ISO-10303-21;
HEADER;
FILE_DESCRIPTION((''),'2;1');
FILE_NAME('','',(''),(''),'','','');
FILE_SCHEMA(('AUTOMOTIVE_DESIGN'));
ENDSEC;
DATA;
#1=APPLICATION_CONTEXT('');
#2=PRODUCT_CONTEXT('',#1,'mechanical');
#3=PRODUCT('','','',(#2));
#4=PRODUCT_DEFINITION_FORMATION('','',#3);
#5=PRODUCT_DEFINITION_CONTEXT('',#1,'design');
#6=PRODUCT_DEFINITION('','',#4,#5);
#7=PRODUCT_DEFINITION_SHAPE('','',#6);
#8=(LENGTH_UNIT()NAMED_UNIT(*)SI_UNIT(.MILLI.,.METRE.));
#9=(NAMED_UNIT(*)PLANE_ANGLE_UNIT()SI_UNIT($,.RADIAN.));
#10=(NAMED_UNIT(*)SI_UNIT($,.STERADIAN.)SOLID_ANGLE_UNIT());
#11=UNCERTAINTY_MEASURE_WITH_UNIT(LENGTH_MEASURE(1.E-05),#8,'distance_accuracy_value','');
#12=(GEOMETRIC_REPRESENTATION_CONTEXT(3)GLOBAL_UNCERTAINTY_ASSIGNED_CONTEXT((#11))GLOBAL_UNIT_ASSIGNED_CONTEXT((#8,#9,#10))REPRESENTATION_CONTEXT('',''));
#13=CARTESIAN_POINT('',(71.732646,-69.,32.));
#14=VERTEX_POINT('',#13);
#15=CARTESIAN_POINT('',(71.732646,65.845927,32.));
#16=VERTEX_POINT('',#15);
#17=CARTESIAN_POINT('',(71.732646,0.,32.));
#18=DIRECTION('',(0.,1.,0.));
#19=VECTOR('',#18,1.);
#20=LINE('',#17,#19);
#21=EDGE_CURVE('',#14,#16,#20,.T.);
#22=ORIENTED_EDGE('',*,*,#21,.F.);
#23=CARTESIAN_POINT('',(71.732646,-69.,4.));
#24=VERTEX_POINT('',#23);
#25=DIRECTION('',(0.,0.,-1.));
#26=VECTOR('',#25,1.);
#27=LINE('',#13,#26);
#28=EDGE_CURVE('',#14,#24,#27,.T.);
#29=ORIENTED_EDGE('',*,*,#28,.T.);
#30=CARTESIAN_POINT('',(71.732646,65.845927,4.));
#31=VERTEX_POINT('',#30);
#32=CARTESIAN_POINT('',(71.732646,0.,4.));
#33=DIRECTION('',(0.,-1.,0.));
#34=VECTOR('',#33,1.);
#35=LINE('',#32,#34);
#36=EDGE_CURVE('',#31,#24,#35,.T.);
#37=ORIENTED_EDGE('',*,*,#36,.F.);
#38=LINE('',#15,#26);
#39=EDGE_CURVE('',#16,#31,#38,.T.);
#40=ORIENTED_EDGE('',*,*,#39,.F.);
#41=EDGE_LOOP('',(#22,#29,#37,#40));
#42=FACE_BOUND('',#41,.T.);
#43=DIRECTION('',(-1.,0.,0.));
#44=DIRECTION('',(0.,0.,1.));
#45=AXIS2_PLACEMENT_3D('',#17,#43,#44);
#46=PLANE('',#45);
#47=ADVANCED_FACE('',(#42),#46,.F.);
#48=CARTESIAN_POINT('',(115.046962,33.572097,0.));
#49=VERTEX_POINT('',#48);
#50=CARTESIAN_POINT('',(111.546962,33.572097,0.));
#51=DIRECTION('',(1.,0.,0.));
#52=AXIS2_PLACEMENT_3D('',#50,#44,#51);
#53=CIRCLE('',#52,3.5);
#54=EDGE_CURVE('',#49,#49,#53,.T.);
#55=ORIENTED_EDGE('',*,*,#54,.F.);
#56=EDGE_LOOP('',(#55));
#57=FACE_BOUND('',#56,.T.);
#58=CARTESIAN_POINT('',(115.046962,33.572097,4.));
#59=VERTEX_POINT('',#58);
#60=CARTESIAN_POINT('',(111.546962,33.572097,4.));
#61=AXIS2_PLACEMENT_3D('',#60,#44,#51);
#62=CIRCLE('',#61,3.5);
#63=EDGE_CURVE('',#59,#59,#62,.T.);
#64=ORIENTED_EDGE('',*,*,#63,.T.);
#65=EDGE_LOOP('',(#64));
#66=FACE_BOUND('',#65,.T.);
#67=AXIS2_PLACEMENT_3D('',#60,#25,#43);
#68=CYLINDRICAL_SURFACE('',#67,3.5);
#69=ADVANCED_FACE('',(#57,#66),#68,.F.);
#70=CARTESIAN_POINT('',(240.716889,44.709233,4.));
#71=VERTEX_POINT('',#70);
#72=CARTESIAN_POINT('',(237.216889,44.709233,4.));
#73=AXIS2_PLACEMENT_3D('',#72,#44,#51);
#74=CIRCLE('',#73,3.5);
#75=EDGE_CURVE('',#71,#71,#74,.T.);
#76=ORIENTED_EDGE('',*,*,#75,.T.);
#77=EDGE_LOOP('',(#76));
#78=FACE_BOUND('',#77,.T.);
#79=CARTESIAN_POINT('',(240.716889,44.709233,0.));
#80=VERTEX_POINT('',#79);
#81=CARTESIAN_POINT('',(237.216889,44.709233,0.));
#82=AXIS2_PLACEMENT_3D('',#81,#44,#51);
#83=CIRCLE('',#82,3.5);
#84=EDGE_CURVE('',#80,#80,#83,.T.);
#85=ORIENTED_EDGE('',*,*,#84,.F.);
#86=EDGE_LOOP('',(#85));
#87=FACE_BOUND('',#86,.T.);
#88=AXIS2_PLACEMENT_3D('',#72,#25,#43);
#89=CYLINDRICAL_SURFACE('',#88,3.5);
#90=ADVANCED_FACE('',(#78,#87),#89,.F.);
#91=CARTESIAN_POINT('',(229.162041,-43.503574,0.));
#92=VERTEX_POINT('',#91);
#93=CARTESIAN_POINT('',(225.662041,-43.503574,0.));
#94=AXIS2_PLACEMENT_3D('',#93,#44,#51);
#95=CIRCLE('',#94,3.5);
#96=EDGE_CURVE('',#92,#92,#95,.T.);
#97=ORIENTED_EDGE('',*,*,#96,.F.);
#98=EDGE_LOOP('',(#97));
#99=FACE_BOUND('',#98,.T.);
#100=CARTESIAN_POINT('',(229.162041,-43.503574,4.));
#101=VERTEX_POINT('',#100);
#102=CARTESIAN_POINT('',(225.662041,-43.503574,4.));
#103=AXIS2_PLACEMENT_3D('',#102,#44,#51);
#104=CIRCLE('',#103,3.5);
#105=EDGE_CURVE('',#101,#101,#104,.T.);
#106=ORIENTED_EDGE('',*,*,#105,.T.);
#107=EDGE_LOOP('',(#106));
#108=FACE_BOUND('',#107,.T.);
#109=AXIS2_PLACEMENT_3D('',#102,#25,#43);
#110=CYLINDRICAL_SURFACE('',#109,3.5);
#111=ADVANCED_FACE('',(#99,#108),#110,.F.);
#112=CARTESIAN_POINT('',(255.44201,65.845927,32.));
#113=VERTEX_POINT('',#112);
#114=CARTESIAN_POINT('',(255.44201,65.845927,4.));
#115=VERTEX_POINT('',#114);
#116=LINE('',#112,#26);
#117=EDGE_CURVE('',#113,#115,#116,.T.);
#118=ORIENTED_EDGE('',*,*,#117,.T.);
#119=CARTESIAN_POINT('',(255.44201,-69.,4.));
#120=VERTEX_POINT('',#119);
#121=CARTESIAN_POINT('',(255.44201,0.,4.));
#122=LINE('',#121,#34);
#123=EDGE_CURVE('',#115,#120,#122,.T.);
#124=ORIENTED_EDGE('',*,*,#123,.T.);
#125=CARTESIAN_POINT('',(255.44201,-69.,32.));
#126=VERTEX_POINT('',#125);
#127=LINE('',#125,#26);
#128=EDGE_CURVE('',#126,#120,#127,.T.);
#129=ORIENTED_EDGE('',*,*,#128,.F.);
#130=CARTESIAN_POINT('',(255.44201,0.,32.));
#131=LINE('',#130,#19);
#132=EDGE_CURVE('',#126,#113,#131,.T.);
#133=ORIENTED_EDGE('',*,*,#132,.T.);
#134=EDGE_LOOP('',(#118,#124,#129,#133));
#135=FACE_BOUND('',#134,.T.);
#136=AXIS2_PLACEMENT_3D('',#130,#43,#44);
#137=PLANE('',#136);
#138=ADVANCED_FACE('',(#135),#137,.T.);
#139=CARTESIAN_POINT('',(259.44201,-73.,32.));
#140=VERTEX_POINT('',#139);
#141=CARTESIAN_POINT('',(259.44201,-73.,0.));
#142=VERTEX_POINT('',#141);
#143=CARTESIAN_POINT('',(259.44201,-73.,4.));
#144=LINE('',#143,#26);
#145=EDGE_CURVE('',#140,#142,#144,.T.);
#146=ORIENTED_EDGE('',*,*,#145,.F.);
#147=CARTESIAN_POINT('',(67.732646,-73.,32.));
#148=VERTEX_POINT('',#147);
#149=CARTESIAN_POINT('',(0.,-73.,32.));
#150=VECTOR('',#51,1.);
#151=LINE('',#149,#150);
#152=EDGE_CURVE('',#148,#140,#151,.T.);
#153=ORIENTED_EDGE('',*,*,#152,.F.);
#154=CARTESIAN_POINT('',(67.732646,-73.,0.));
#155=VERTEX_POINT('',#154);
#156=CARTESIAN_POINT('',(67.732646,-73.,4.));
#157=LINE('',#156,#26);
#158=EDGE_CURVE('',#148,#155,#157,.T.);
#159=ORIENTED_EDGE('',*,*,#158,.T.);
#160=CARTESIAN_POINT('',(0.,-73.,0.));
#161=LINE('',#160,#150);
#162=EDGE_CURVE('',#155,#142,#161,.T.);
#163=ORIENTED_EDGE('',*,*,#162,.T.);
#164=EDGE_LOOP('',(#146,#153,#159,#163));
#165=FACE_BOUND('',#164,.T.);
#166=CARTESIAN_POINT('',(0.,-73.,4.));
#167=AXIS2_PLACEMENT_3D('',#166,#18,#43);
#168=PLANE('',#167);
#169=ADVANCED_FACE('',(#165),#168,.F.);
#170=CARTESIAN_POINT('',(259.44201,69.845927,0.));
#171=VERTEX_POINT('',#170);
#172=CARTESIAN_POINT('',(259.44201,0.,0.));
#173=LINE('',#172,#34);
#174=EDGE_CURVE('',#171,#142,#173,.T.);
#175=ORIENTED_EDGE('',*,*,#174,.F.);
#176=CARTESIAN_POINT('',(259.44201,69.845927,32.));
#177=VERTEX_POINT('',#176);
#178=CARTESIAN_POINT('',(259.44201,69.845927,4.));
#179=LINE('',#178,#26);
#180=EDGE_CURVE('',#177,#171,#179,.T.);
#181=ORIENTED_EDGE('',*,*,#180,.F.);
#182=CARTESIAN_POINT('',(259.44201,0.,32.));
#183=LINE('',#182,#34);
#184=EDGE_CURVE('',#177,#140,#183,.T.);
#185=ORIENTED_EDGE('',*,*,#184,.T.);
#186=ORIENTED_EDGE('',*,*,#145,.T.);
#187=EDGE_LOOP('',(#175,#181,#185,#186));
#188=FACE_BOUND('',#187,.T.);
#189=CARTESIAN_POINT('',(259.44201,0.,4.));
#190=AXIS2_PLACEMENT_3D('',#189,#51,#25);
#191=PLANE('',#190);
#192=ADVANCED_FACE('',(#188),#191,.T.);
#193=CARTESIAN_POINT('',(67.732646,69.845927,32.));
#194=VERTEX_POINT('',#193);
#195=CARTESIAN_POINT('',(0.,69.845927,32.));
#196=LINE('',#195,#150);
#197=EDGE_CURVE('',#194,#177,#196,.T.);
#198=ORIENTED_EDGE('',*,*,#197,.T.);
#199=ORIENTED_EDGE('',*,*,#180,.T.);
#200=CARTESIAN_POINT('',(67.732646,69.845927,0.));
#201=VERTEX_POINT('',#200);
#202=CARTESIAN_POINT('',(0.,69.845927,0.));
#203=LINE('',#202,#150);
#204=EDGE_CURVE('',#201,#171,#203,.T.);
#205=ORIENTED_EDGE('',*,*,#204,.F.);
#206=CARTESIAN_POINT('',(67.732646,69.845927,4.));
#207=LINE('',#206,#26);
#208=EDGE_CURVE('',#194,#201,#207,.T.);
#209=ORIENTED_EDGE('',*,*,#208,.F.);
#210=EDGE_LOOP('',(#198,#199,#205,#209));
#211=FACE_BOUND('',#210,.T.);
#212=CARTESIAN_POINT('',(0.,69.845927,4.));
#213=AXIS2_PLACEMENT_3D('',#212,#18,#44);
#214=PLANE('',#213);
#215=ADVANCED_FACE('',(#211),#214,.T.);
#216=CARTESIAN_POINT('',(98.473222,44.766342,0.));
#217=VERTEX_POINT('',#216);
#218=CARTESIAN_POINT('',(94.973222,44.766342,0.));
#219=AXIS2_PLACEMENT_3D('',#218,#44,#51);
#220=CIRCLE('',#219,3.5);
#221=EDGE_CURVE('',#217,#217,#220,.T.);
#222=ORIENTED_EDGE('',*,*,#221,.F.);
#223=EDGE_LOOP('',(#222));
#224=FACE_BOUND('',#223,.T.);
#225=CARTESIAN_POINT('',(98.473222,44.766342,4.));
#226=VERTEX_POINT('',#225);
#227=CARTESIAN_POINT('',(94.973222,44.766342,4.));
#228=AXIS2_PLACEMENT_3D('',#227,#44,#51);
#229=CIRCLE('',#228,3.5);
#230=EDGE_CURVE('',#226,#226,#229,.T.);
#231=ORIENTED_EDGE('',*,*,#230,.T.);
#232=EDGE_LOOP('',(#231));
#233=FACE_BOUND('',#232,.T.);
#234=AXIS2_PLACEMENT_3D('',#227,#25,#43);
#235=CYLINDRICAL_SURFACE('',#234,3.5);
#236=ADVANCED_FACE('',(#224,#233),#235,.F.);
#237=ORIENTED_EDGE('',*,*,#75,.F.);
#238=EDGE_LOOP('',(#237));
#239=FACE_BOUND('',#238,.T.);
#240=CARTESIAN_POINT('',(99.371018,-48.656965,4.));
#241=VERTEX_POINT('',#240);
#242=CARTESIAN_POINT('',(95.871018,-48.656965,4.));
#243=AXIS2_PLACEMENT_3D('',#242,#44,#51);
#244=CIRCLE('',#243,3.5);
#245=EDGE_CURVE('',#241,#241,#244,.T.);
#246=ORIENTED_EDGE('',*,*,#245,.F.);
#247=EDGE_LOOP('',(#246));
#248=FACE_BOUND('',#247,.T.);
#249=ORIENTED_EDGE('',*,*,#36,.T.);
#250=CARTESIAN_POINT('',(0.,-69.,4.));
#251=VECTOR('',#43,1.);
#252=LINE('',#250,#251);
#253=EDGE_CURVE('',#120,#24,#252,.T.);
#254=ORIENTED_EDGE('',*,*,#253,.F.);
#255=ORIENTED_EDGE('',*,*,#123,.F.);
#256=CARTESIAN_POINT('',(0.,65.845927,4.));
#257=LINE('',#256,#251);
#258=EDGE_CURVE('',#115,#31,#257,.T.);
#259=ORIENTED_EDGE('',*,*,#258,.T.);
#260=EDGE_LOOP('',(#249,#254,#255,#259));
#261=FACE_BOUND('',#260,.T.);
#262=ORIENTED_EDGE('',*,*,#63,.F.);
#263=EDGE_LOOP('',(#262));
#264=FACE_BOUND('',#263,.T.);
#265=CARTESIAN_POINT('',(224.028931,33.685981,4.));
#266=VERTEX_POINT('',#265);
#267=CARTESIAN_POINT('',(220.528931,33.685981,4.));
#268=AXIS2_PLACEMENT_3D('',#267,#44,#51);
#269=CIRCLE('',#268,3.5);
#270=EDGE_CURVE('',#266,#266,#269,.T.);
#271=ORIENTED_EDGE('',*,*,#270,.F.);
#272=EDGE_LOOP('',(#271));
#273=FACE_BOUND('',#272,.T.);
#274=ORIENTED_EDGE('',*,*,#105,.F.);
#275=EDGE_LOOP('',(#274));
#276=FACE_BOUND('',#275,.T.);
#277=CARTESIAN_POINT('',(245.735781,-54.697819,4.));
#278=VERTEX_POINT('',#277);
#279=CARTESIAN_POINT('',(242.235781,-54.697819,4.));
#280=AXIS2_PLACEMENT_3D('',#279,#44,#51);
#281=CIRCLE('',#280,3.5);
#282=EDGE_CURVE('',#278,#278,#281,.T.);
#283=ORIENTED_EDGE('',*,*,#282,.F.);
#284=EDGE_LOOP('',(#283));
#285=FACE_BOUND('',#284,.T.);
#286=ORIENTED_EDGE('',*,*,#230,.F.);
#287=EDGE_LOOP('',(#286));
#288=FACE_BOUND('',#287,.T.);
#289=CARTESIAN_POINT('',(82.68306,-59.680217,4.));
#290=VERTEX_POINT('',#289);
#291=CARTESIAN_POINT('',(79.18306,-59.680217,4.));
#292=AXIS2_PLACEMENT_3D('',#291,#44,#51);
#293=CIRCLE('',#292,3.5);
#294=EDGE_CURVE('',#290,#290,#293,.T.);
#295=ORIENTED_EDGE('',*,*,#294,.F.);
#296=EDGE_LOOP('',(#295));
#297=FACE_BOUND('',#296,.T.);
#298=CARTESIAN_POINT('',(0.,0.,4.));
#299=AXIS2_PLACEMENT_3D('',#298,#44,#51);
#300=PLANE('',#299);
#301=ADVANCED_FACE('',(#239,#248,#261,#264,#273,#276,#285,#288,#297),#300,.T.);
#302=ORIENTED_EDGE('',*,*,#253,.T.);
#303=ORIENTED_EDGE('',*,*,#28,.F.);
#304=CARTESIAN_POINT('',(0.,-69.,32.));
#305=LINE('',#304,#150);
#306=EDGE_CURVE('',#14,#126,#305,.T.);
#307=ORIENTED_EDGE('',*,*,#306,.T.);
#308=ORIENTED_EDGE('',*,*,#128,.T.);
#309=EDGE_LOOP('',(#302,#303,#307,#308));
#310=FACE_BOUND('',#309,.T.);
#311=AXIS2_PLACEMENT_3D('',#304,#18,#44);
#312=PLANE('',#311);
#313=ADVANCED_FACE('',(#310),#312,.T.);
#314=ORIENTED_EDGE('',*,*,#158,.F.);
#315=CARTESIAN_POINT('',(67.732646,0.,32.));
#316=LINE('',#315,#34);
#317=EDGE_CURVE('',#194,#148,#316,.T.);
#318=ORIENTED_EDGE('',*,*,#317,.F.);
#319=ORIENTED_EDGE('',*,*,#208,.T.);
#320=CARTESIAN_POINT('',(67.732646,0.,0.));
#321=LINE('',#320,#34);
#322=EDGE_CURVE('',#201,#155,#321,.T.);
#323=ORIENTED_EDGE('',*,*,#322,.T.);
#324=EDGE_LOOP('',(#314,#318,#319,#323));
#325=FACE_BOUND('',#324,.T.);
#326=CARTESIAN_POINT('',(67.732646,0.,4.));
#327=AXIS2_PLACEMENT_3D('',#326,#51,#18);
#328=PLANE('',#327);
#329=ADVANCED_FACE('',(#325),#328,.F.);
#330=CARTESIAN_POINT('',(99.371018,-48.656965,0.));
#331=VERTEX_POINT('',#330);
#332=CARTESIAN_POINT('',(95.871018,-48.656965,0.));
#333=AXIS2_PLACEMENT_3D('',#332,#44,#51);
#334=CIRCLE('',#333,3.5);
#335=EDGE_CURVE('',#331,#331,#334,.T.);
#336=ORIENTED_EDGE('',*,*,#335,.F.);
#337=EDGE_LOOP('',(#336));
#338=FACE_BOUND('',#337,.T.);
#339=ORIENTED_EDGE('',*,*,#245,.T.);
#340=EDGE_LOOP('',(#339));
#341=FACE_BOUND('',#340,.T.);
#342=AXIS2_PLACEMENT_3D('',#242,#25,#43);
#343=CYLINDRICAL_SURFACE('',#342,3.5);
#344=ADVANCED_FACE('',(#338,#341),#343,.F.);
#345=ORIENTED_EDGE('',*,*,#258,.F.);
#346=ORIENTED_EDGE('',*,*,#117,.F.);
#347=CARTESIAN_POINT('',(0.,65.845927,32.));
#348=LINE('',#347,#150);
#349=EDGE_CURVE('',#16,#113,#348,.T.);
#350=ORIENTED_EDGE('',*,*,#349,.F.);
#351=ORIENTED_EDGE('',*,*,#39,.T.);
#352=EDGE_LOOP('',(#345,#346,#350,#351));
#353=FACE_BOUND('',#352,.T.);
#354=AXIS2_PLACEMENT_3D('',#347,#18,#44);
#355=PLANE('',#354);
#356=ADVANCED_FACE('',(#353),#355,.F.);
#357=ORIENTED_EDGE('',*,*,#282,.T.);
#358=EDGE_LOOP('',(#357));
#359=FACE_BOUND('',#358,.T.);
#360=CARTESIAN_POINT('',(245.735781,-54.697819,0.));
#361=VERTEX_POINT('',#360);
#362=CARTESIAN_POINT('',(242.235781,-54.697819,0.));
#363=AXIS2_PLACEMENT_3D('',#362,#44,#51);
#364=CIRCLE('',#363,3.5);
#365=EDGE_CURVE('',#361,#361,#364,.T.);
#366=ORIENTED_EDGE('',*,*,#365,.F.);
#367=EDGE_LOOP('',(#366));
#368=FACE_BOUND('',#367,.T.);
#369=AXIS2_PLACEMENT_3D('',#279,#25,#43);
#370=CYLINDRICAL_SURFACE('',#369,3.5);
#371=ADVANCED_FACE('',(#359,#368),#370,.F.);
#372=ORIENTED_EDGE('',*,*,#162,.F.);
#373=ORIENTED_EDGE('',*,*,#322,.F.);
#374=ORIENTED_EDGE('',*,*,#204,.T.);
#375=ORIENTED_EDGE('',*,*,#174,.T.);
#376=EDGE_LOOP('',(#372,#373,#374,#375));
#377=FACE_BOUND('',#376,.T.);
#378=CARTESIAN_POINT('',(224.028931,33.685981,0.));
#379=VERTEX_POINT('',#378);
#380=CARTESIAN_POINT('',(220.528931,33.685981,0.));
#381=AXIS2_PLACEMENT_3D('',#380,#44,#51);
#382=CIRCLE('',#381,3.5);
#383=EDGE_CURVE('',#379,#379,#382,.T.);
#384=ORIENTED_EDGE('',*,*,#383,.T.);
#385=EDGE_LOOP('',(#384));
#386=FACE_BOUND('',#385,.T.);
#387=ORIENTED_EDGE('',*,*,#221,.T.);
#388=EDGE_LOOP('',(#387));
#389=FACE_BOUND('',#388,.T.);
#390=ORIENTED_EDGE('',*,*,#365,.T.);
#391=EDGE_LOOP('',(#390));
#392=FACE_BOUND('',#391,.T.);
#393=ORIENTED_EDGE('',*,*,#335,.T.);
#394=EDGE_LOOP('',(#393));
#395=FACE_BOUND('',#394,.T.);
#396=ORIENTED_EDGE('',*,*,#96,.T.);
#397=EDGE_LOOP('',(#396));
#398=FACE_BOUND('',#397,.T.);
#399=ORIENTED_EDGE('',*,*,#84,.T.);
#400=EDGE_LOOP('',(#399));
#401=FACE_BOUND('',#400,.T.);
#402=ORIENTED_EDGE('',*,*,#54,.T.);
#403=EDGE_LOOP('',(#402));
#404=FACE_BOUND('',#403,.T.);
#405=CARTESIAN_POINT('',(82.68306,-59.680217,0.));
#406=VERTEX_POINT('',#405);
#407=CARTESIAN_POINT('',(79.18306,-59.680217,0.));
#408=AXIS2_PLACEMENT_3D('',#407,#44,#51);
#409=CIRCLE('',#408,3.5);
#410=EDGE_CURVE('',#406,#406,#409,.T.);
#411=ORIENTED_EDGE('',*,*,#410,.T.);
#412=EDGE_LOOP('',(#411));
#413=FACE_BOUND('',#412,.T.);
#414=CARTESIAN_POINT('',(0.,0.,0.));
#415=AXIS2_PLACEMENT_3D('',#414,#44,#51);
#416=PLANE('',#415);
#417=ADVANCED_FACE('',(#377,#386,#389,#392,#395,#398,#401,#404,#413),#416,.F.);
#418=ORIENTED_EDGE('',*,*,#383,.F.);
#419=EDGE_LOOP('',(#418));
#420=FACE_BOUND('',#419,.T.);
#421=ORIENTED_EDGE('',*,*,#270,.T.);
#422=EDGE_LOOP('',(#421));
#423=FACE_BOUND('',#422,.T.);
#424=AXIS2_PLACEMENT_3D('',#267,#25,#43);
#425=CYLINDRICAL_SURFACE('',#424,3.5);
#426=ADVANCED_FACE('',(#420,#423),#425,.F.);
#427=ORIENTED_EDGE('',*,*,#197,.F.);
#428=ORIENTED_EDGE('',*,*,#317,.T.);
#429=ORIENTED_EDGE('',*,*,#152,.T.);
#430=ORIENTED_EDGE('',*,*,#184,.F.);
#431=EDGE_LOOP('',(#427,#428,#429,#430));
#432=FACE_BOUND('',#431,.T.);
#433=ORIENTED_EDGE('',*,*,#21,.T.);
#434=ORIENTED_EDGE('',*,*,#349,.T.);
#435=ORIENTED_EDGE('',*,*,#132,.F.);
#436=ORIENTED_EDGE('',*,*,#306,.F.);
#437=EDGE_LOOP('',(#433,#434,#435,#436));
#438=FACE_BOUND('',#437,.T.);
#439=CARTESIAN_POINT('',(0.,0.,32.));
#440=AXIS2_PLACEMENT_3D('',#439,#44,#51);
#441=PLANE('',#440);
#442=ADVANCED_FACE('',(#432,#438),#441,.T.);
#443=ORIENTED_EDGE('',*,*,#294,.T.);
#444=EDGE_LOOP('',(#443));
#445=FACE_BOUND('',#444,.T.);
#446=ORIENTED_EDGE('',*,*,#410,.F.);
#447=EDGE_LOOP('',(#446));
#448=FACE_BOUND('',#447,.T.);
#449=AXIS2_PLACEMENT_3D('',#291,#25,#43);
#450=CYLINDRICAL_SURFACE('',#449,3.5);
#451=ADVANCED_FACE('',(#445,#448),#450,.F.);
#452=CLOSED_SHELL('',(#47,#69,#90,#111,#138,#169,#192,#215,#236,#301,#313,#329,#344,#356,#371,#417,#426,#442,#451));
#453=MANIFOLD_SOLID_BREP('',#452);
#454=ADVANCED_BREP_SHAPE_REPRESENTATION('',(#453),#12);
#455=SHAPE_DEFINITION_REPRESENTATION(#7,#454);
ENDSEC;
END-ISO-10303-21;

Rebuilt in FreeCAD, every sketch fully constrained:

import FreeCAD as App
import Part
import Sketcher

V = App.Vector
Q = App.Units.Quantity


def add_polygon(sketch, points):
    """Adds a closed chain of lines whose ends are joined by coincident constraints."""
    first, n = sketch.GeometryCount, len(points)
    for a, b in zip(points, points[1:] + points[:1]):
        sketch.addGeometry(Part.LineSegment(App.Vector(*a, 0), App.Vector(*b, 0)), False)
    for i in range(n):
        sketch.addConstraint(Sketcher.Constraint("Coincident", first + i, 2, first + (i + 1) % n, 1))

doc = App.newDocument("Part")
body = doc.addObject("PartDesign::Body", "Body")

# Sketch on XY plane
sketch1 = body.newObject("Sketcher::SketchObject", "Sketch")
sketch1.AttachmentSupport = (doc.getObject("XY_Plane"), [""])
sketch1.MapMode = "FlatFace"
add_polygon(sketch1, [(67.732646, 69.845927), (67.732646, -73), (259.44201, -73), (259.44201, 69.845927)])  # lines 0-3
sketch1.addGeometry(Part.Circle(V(79.18306, -59.680217, 0), V(0, 0, 1), 3.5), False)  # 4
sketch1.addGeometry(Part.Circle(V(95.871018, -48.656965, 0), V(0, 0, 1), 3.5), False)  # 5
sketch1.addGeometry(Part.Circle(V(242.235781, -54.697819, 0), V(0, 0, 1), 3.5), False)  # 6
sketch1.addGeometry(Part.Circle(V(225.662041, -43.503574, 0), V(0, 0, 1), 3.5), False)  # 7
sketch1.addGeometry(Part.Circle(V(111.546962, 33.572097, 0), V(0, 0, 1), 3.5), False)  # 8
sketch1.addGeometry(Part.Circle(V(94.973222, 44.766342, 0), V(0, 0, 1), 3.5), False)  # 9
sketch1.addGeometry(Part.Circle(V(220.528931, 33.685981, 0), V(0, 0, 1), 3.5), False)  # 10
sketch1.addGeometry(Part.Circle(V(237.216889, 44.709233, 0), V(0, 0, 1), 3.5), False)  # 11
sketch1.addConstraint([
    Sketcher.Constraint("Vertical", 0),
    Sketcher.Constraint("Horizontal", 1),
    Sketcher.Constraint("Vertical", 2),
    Sketcher.Constraint("Horizontal", 3),
    Sketcher.Constraint("Equal", 4, 5),
    Sketcher.Constraint("Equal", 5, 6),
    Sketcher.Constraint("Equal", 6, 7),
    Sketcher.Constraint("Equal", 7, 8),
    Sketcher.Constraint("Equal", 8, 9),
    Sketcher.Constraint("Equal", 9, 10),
    Sketcher.Constraint("Equal", 10, 11),
    Sketcher.Constraint("Diameter", 4, Q("7 mm")),
    Sketcher.Constraint("DistanceY", 0, 2, -1, 1, Q("73 mm")),
    Sketcher.Constraint("DistanceY", 4, 3, 6, 3, Q("4.982398 mm")),
    Sketcher.Constraint("DistanceX", 4, 3, 8, 3, Q("32.363902 mm")),
    Sketcher.Constraint("DistanceY", 6, 3, 10, 3, Q("88.3838 mm")),
    Sketcher.Constraint("DistanceY", 7, 3, 2, 2, Q("113.349501 mm")),
    Sketcher.Constraint("DistanceX", 1, 1, 1, 2, Q("191.709364 mm")),
    Sketcher.Constraint("DistanceY", 0, 2, 0, 1, Q("142.845927 mm")),
    Sketcher.Constraint("DistanceX", -1, 1, 4, 3, Q("79.18306 mm")),
    Sketcher.Constraint("DistanceX", -1, 1, 6, 3, Q("242.235781 mm")),
    Sketcher.Constraint("DistanceY", 6, 3, -1, 1, Q("54.697819 mm")),
    Sketcher.Constraint("DistanceX", -1, 1, 7, 3, Q("225.662041 mm")),
    Sketcher.Constraint("DistanceX", -1, 1, 9, 3, Q("94.973222 mm")),
    Sketcher.Constraint("DistanceY", -1, 1, 9, 3, Q("44.766342 mm")),
    Sketcher.Constraint("DistanceX", -1, 1, 10, 3, Q("220.528931 mm")),
    Sketcher.Constraint("DistanceX", -1, 1, 11, 3, Q("237.216889 mm")),
    Sketcher.Constraint("DistanceX", -1, 1, 1, 2, Q("259.44201 mm")),
    Sketcher.Constraint("DistanceY", 4, 3, 5, 3, Q("11.023252 mm")),
    Sketcher.Constraint("DistanceY", 5, 3, 8, 3, Q("82.229062 mm")),
    Sketcher.Constraint("DistanceY", 10, 3, 11, 3, Q("11.023252 mm")),
    Sketcher.Constraint("DistanceX", 0, 2, 5, 3, Q("28.138372 mm")),
])
pad1 = body.newObject("PartDesign::Pad", "Pad")
pad1.Profile = sketch1
pad1.Length = 4

# Sketch on XY plane
sketch2 = body.newObject("Sketcher::SketchObject", "Sketch001")
sketch2.AttachmentSupport = (doc.getObject("XY_Plane"), [""])
sketch2.MapMode = "FlatFace"
add_polygon(sketch2, [(67.732646, 69.845927), (67.732646, -73), (259.44201, -73), (259.44201, 69.845927)])  # lines 0-3
add_polygon(sketch2, [(255.44201, -69), (71.732646, -69), (71.732646, 65.845927), (255.44201, 65.845927)])  # lines 4-7
sketch2.addConstraint([
    Sketcher.Constraint("Vertical", 0),
    Sketcher.Constraint("Horizontal", 1),
    Sketcher.Constraint("Vertical", 2),
    Sketcher.Constraint("Horizontal", 3),
    Sketcher.Constraint("Horizontal", 4),
    Sketcher.Constraint("Vertical", 5),
    Sketcher.Constraint("Horizontal", 6),
    Sketcher.Constraint("Vertical", 7),
    Sketcher.Constraint("DistanceY", 0, 2, -1, 1, Q("73 mm")),
    Sketcher.Constraint("DistanceY", 4, 2, -1, 1, Q("69 mm")),
    Sketcher.Constraint("DistanceX", 0, 2, 4, 2, Q("4 mm")),
    Sketcher.Constraint("DistanceY", 5, 2, 3, 2, Q("4 mm")),
    Sketcher.Constraint("DistanceX", 6, 2, 2, 2, Q("4 mm")),
    Sketcher.Constraint("DistanceX", 1, 1, 1, 2, Q("191.709364 mm")),
    Sketcher.Constraint("DistanceY", 0, 2, 0, 1, Q("142.845927 mm")),
    Sketcher.Constraint("DistanceX", -1, 1, 1, 2, Q("259.44201 mm")),
])
pad2 = body.newObject("PartDesign::Pad", "Pad001")
pad2.Profile = sketch2
pad2.Length = 32

doc.recompute()
